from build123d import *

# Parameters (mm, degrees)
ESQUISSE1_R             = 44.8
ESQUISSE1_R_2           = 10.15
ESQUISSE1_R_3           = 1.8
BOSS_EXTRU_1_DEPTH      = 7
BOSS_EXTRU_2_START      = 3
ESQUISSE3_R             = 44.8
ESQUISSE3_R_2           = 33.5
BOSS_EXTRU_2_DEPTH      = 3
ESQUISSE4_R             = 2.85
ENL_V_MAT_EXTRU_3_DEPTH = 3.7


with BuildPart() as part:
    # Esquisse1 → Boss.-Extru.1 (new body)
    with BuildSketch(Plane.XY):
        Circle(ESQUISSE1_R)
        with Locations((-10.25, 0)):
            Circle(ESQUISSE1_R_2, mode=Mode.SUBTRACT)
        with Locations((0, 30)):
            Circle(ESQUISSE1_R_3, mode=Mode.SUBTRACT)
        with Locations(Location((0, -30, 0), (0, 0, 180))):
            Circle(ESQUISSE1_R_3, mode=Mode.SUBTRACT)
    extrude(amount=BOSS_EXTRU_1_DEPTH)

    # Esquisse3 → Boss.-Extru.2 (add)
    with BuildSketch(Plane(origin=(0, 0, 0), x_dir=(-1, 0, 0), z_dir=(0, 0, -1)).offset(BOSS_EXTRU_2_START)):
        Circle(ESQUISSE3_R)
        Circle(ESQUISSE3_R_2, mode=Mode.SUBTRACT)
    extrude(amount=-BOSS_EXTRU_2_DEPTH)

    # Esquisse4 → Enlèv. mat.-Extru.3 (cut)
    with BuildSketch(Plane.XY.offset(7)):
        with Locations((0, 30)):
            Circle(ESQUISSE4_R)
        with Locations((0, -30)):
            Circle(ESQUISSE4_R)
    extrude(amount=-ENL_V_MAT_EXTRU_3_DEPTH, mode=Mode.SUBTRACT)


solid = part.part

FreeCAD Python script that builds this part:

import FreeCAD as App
import Part
import Sketcher

V = App.Vector

doc = App.newDocument("Part")
params = doc.addObject("Spreadsheet::Sheet", "Params")
for row, (alias, value) in enumerate([
    ("sketch1_diameter", "89.6 mm"),
    ("sketch1_diameter2", "3.6 mm"),
    ("sketch1_diameter3", "20.3 mm"),
    ("pad1_length", "7 mm"),
    ("sketch2_diameter", "67 mm"),
    ("sketch2_diameter2", "89.6 mm"),
    ("pad2_length", "3 mm"),
    ("sketch3_diameter", "5.7 mm"),
    ("pocket1_length", "3.7 mm"),
], start=1):
    params.set(f"A{row}", alias)
    params.set(f"B{row}", "=" + value)
    params.setAlias(f"B{row}", alias)

body = doc.addObject("PartDesign::Body", "Body")

# Sketch on XY plane
sketch1 = body.newObject("Sketcher::SketchObject", "Sketch")
sketch1.AttachmentSupport = (doc.getObject("XY_Plane"), [""])
sketch1.MapMode = "FlatFace"
sketch1.addGeometry(Part.Circle(V(0, 0, 0), V(0, 0, 1), 44.8), False)
sketch1.addGeometry(Part.Circle(V(0, -30, 0), V(0, 0, 1), 1.8), False)
sketch1.addGeometry(Part.Circle(V(-10.25, 0, 0), V(0, 0, 1), 10.15), False)
sketch1.addGeometry(Part.Circle(V(0, 30, 0), V(0, 0, 1), 1.8), False)
sketch1.addConstraint(Sketcher.Constraint("Coincident", 0, 3, -1, 1))
sketch1.addConstraint(Sketcher.Constraint("Equal", 1, 3))
sketch1.addConstraint(Sketcher.Constraint("Symmetric", 1, 3, 3, 3, -1, 1))
sketch1.addConstraint(Sketcher.Constraint("PointOnObject", 1, 3, -2))
sketch1.addConstraint(Sketcher.Constraint("PointOnObject", 2, 3, -1))
sketch1.addConstraint(Sketcher.Constraint("Diameter", 0, 89.6))
sketch1.addConstraint(Sketcher.Constraint("Diameter", 1, 3.6))
sketch1.addConstraint(Sketcher.Constraint("Diameter", 2, 20.3))
sketch1.addConstraint(Sketcher.Constraint("DistanceY", 1, 3, -1, 1, 30.0))
sketch1.addConstraint(Sketcher.Constraint("DistanceX", 2, 3, -1, 1, 10.25))
sketch1.setExpression("Constraints[5]", "Params.sketch1_diameter")
sketch1.setExpression("Constraints[6]", "Params.sketch1_diameter2")
sketch1.setExpression("Constraints[7]", "Params.sketch1_diameter3")
pad1 = body.newObject("PartDesign::Pad", "Pad")
pad1.Profile = sketch1
pad1.setExpression("Length", "Params.pad1_length")

# Sketch on XY plane
sketch2 = body.newObject("Sketcher::SketchObject", "Sketch001")
sketch2.AttachmentSupport = (doc.getObject("XY_Plane"), [""])
sketch2.MapMode = "FlatFace"
sketch2.AttachmentOffset = App.Placement(V(0, 0, -3), App.Rotation())
sketch2.addGeometry(Part.Circle(V(0, 0, 0), V(0, 0, 1), 44.8), False)
sketch2.addGeometry(Part.Circle(V(0, 0, 0), V(0, 0, 1), 33.5), False)
sketch2.addConstraint(Sketcher.Constraint("Coincident", 0, 3, -1, 1))
sketch2.addConstraint(Sketcher.Constraint("Coincident", 1, 3, -1, 1))
sketch2.addConstraint(Sketcher.Constraint("Diameter", 1, 67.0))
sketch2.addConstraint(Sketcher.Constraint("Diameter", 0, 89.6))
sketch2.setExpression("Constraints[2]", "Params.sketch2_diameter")
sketch2.setExpression("Constraints[3]", "Params.sketch2_diameter2")
pad2 = body.newObject("PartDesign::Pad", "Pad001")
pad2.Profile = sketch2
pad2.setExpression("Length", "Params.pad2_length")

# Sketch on XY plane
sketch3 = body.newObject("Sketcher::SketchObject", "Sketch002")
sketch3.AttachmentSupport = (doc.getObject("XY_Plane"), [""])
sketch3.MapMode = "FlatFace"
sketch3.AttachmentOffset = App.Placement(V(0, 0, 7), App.Rotation())
sketch3.addGeometry(Part.Circle(V(0, 30, 0), V(0, 0, 1), 2.85), False)
sketch3.addGeometry(Part.Circle(V(0, -30, 0), V(0, 0, 1), 2.85), False)
sketch3.addConstraint(Sketcher.Constraint("Equal", 0, 1))
sketch3.addConstraint(Sketcher.Constraint("Symmetric", 0, 3, 1, 3, -1, 1))
sketch3.addConstraint(Sketcher.Constraint("PointOnObject", 0, 3, -2))
sketch3.addConstraint(Sketcher.Constraint("Diameter", 0, 5.7))
sketch3.addConstraint(Sketcher.Constraint("DistanceY", -1, 1, 0, 3, 30.0))
sketch3.setExpression("Constraints[3]", "Params.sketch3_diameter")
pocket1 = body.newObject("PartDesign::Pocket", "Pocket")
pocket1.Profile = sketch3
pocket1.setExpression("Length", "Params.pocket1_length")

doc.recompute()
